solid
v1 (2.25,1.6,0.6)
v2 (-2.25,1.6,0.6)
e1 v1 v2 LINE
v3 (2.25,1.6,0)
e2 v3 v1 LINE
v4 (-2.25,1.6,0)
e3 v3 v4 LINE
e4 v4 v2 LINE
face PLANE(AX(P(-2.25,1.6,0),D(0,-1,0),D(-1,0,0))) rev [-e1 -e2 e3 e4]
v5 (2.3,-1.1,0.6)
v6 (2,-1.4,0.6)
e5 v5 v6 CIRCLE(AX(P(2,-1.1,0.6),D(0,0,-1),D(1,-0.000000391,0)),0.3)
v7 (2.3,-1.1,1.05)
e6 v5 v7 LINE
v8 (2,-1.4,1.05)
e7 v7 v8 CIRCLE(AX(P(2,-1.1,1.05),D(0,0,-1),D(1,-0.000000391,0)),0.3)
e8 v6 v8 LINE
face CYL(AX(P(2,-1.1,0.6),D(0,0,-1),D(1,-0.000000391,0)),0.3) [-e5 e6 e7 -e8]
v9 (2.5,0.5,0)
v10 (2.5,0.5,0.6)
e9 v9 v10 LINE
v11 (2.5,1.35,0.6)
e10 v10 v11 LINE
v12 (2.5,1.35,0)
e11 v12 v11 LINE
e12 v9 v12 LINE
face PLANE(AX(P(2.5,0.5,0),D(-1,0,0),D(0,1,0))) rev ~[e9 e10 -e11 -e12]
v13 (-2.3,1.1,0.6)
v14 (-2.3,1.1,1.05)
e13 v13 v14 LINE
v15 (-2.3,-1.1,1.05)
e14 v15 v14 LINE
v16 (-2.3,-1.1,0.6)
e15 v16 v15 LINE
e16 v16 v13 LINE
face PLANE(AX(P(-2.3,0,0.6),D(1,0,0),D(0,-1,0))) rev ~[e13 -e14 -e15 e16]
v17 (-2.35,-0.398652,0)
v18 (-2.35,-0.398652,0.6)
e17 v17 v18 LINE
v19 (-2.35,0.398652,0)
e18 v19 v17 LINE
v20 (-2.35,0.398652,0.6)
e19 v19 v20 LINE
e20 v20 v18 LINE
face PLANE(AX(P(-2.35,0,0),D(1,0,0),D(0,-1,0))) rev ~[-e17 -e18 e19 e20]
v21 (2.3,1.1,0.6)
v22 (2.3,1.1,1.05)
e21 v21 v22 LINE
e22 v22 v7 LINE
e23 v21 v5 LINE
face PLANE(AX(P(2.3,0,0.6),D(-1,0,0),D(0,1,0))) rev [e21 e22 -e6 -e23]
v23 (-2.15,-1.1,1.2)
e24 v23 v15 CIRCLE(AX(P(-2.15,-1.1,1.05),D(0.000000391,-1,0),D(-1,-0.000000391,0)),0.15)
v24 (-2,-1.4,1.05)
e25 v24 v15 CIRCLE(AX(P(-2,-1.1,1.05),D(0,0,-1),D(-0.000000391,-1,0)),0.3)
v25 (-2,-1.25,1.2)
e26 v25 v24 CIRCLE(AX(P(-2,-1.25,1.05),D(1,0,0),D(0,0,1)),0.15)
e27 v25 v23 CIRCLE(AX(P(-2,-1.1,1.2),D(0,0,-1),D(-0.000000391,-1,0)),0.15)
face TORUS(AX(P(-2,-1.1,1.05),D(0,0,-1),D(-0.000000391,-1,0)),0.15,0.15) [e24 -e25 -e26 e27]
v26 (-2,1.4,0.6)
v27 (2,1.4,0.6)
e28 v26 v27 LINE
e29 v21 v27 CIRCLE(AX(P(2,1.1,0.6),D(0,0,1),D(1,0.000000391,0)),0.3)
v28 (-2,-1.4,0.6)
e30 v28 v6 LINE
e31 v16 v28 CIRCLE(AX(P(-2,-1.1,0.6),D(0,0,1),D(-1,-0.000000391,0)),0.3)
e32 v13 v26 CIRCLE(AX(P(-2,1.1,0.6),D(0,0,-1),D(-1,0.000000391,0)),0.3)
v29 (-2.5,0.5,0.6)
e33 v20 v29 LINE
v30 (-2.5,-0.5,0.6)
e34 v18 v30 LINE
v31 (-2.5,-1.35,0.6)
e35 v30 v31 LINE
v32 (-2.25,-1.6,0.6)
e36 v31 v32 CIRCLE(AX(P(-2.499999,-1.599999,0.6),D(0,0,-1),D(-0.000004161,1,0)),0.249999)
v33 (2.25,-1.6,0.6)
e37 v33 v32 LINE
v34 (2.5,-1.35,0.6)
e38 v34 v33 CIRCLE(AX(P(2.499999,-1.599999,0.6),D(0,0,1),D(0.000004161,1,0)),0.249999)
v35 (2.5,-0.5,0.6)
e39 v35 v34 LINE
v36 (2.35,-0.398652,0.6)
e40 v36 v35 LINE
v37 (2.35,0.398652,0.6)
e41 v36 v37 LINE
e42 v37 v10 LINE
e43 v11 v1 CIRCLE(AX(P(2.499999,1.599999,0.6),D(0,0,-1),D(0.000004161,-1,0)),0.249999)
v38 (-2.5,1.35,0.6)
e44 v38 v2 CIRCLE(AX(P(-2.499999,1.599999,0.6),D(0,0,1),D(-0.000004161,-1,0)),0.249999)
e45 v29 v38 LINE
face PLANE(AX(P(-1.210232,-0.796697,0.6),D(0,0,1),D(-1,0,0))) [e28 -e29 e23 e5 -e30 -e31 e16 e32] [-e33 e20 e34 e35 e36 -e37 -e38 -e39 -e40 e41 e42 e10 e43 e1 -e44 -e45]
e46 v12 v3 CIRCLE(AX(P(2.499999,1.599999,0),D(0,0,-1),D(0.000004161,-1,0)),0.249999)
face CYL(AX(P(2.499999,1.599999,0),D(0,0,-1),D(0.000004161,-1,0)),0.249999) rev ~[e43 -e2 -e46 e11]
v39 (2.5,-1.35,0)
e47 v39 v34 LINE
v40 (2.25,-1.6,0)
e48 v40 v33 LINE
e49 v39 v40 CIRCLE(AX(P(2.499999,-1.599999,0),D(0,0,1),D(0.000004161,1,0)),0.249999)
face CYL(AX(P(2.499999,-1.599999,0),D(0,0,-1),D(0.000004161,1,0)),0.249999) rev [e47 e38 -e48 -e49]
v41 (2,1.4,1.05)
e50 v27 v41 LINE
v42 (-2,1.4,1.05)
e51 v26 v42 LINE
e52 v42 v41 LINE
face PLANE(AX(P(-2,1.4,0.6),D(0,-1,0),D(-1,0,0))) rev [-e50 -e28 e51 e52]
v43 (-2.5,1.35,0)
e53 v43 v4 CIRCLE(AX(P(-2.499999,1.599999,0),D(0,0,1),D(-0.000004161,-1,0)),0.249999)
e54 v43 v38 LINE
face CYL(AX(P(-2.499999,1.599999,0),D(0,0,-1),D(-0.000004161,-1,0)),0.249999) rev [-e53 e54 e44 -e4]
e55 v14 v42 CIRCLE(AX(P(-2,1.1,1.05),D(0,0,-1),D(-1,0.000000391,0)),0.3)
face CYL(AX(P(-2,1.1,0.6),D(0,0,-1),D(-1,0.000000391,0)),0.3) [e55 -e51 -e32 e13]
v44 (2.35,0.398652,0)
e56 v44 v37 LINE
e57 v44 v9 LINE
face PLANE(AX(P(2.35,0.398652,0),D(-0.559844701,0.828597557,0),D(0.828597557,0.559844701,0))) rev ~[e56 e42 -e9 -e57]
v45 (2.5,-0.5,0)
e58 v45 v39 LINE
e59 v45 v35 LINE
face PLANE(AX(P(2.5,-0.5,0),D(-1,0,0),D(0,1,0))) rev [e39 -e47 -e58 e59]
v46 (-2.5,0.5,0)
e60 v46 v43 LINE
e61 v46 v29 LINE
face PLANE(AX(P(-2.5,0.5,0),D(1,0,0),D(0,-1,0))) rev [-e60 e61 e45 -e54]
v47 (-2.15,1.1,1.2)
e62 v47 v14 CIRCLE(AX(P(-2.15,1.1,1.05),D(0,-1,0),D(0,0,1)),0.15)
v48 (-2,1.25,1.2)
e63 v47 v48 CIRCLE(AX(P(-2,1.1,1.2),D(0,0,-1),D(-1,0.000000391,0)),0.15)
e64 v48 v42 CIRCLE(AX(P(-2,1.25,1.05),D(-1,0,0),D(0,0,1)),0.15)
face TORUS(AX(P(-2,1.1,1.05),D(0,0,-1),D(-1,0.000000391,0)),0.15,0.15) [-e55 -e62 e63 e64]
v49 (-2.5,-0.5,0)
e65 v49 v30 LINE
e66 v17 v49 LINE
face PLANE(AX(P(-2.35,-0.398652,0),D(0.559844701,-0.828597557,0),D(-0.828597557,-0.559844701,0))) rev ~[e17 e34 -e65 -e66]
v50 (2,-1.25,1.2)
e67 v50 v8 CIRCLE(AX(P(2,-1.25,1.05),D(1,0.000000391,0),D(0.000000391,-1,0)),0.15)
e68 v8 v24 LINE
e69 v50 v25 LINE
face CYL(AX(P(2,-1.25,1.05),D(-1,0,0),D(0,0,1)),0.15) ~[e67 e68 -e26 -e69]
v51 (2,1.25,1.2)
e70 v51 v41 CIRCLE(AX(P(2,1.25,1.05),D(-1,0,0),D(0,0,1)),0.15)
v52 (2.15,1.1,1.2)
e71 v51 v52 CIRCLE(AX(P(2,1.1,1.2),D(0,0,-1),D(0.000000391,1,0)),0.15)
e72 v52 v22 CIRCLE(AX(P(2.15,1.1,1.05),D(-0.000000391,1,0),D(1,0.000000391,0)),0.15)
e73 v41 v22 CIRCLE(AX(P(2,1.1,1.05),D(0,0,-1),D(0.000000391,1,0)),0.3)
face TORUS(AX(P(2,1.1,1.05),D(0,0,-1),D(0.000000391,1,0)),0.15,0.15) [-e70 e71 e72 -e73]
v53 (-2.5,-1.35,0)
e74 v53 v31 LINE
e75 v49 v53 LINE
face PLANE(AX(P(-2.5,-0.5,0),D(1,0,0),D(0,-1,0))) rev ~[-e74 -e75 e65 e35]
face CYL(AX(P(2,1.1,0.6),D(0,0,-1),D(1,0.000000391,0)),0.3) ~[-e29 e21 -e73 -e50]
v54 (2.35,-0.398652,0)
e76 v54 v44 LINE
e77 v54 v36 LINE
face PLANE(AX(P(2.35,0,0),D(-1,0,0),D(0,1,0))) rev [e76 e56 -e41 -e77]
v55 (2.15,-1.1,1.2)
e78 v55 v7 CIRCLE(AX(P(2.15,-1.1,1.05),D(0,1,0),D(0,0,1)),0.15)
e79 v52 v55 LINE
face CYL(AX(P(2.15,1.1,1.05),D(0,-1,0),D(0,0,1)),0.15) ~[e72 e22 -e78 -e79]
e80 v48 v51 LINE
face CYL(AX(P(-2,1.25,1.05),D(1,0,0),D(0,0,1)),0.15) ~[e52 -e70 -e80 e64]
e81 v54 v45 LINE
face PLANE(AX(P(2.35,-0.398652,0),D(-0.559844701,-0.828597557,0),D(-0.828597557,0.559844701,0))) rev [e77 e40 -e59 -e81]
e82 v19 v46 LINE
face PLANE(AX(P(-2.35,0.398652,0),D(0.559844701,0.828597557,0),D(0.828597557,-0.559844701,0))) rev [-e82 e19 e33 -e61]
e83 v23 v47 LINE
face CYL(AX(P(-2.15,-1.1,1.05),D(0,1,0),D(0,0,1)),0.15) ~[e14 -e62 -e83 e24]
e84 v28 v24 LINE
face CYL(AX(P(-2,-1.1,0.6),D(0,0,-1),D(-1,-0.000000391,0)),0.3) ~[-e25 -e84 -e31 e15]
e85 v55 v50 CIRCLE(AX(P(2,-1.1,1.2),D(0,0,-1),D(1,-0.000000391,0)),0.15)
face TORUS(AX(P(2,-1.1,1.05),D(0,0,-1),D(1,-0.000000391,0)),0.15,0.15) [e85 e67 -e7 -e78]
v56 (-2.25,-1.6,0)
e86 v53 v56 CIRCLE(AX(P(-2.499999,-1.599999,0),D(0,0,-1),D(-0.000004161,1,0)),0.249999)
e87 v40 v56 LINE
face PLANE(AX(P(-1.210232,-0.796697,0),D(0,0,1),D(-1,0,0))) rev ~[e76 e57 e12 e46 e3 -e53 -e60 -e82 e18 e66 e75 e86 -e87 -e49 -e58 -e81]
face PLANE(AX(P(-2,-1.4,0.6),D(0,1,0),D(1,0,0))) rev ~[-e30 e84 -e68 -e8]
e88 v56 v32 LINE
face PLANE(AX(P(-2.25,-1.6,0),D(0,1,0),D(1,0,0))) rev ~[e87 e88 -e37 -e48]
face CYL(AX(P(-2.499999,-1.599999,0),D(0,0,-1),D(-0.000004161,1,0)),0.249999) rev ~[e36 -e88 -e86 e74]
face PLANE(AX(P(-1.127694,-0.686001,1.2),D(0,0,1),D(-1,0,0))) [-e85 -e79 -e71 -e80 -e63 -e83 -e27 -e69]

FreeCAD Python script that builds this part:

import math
import FreeCAD as App
import Part
import Sketcher


def edges_at(feature, points):
    """Names of the edges that pass closest to the given points."""
    edges = feature.Shape.Edges
    near = lambda p: min(range(len(edges)), key=lambda i: edges[i].distToShape(Part.Vertex(*p))[0])
    return sorted({f"Edge{near(p) + 1}" for p in points})

doc = App.newDocument("Part")
params = doc.addObject("Spreadsheet::Sheet", "Params")
for row, (alias, value) in enumerate([
    ("sketch1_radius", "0.249999 mm"),
    ("sketch1_height", "1.6 mm"),
    ("sketch1_width", "2.35 mm"),
    ("sketch1_width2", "2.25 mm"),
    ("sketch1_height2", "0.85 mm"),
    ("pad1_length", "0.6 mm"),
    ("sketch2_radius", "0.3 mm"),
    ("sketch2_width", "2 mm"),
    ("sketch2_height", "1.4 mm"),
    ("pad2_length", "0.6 mm"),
    ("fillet_radius", "0.15 mm"),
], start=1):
    params.set(f"A{row}", alias)
    params.set(f"B{row}", "=" + value)
    params.setAlias(f"B{row}", alias)

body = doc.addObject("PartDesign::Body", "Body")

# Sketch on XY plane
sketch1 = doc.addObject("Sketcher::SketchObject", "Sketch")
body.addObject(sketch1)
sketch1.AttachmentSupport = (doc.XY_Plane, [""])
sketch1.MapMode = "FlatFace"
sketch1.addGeometry([
    Part.LineSegment(App.Vector(0, 1.6, 0), App.Vector(0, 0, 0)),  # 0
    Part.LineSegment(App.Vector(0, 0, 0), App.Vector(2.35, 0, 0)),  # 1
    Part.LineSegment(App.Vector(2.35, 0, 0), App.Vector(2.35, 0.4, 0)),  # 2
    Part.LineSegment(App.Vector(2.35, 0.4, 0), App.Vector(2.5, 0.5, 0)),  # 3
    Part.LineSegment(App.Vector(2.5, 0.5, 0), App.Vector(2.5, 1.35, 0)),  # 4
    Part.ArcOfCircle(Part.Circle(App.Vector(2.5, 1.6, 0), App.Vector(0, 0, 1), 0.25), math.radians(180), math.radians(270)),  # 5
    Part.LineSegment(App.Vector(2.25, 1.6, 0), App.Vector(0, 1.6, 0)),  # 6
], False)
sketch1.addConstraint([
    Sketcher.Constraint("Coincident", 0, 2, 1, 1),
    Sketcher.Constraint("Coincident", 1, 2, 2, 1),
    Sketcher.Constraint("Coincident", 2, 2, 3, 1),
    Sketcher.Constraint("Coincident", 3, 2, 4, 1),
    Sketcher.Constraint("Coincident", 4, 2, 5, 2),
    Sketcher.Constraint("Coincident", 5, 1, 6, 1),
    Sketcher.Constraint("Coincident", 6, 2, 0, 1),
    Sketcher.Constraint("Vertical", 0),
    Sketcher.Constraint("Horizontal", 1),
    Sketcher.Constraint("Vertical", 2),
    Sketcher.Constraint("Vertical", 4),
    Sketcher.Constraint("Horizontal", 6),
    Sketcher.Constraint("Coincident", 0, 2, -1, 1),
    Sketcher.Constraint("Vertical", 5, 3, 3, 2),
    Sketcher.Constraint("Radius", 5, 0.249999),
    Sketcher.Constraint("DistanceY", 0, 2, 0, 1, 1.6),
    Sketcher.Constraint("DistanceX", 1, 1, 1, 2, 2.35),
    Sketcher.Constraint("DistanceX", 6, 2, 6, 1, 2.25),
    Sketcher.Constraint("DistanceY", 4, 1, 4, 2, 0.85),
    Sketcher.Constraint("DistanceY", -1, 1, 5, 3, 1.599999),
    Sketcher.Constraint("Distance", 3, 0.181029),
])
sketch1.setExpression("Constraints[14]", "Params.sketch1_radius")
sketch1.setExpression("Constraints[15]", "Params.sketch1_height")
sketch1.setExpression("Constraints[16]", "Params.sketch1_width")
sketch1.setExpression("Constraints[17]", "Params.sketch1_width2")
sketch1.setExpression("Constraints[18]", "Params.sketch1_height2")
pad1 = doc.addObject("PartDesign::Pad", "Pad")
body.addObject(pad1)
pad1.Profile = sketch1
pad1.setExpression("Length", "Params.pad1_length")

# Sketch on XY plane
sketch2 = doc.addObject("Sketcher::SketchObject", "Sketch001")
body.addObject(sketch2)
sketch2.AttachmentSupport = (doc.XY_Plane, [""])
sketch2.MapMode = "FlatFace"
sketch2.AttachmentOffset = App.Placement(App.Vector(0, 0, 0.6), App.Rotation())
sketch2.addGeometry([
    Part.LineSegment(App.Vector(0, 1.4, 0), App.Vector(0, 0, 0)),  # 0
    Part.LineSegment(App.Vector(0, 0, 0), App.Vector(2.3, 0, 0)),  # 1
    Part.LineSegment(App.Vector(2.3, 0, 0), App.Vector(2.3, 1.1, 0)),  # 2
    Part.ArcOfCircle(Part.Circle(App.Vector(2, 1.1, 0), App.Vector(0, 0, 1), 0.3), math.radians(0), math.radians(90)),  # 3
    Part.LineSegment(App.Vector(2, 1.4, 0), App.Vector(0, 1.4, 0)),  # 4
], False)
sketch2.addConstraint([
    Sketcher.Constraint("Coincident", 0, 2, 1, 1),
    Sketcher.Constraint("Coincident", 1, 2, 2, 1),
    Sketcher.Constraint("Tangent", 2, 2, 3, 1),
    Sketcher.Constraint("Tangent", 3, 2, 4, 1),
    Sketcher.Constraint("Coincident", 4, 2, 0, 1),
    Sketcher.Constraint("Vertical", 0),
    Sketcher.Constraint("Horizontal", 1),
    Sketcher.Constraint("Vertical", 2),
    Sketcher.Constraint("Horizontal", 4),
    Sketcher.Constraint("Coincident", 0, 2, -1, 1),
    Sketcher.Constraint("Radius", 3, 0.3),
    Sketcher.Constraint("DistanceX", 4, 2, 4, 1, 2.0),
    Sketcher.Constraint("DistanceY", 0, 2, 0, 1, 1.4),
])
sketch2.setExpression("Constraints[10]", "Params.sketch2_radius")
sketch2.setExpression("Constraints[11]", "Params.sketch2_width")
sketch2.setExpression("Constraints[12]", "Params.sketch2_height")
pad2 = doc.addObject("PartDesign::Pad", "Pad001")
body.addObject(pad2)
pad2.Profile = sketch2
pad2.setExpression("Length", "Params.pad2_length")
body2 = doc.addObject("PartDesign::Body", "Body001")
doc.recompute()

body2.BaseFeature = body
doc.recompute()

mirroring = doc.addObject("Part::Mirroring", "Mirroring")
mirroring.Source = body
mirroring.Base = App.Vector(0, 0.753333, 0.58)
mirroring.Normal = App.Vector(-1, 0, 0)
body3 = doc.addObject("PartDesign::Body", "Body002")
body3.BaseFeature = mirroring
boolean = doc.addObject("PartDesign::Boolean", "Boolean")
body2.addObject(boolean)
boolean.Type = "Fuse"
boolean.addObjects([body3])
doc.recompute()
body4 = doc.addObject("PartDesign::Body", "Body003")
doc.recompute()

body4.BaseFeature = body2
doc.recompute()

mirroring2 = doc.addObject("Part::Mirroring", "Mirroring001")
mirroring2.Source = body2
mirroring2.Base = App.Vector(0, 0, 0.596774)
mirroring2.Normal = App.Vector(0, -1, 0)
body5 = doc.addObject("PartDesign::Body", "Body004")
body5.BaseFeature = mirroring2
boolean2 = doc.addObject("PartDesign::Boolean", "Boolean001")
body4.addObject(boolean2)
boolean2.Type = "Fuse"
boolean2.addObjects([body5])
doc.recompute()

fillet = doc.addObject("PartDesign::Fillet", "Fillet")
body4.addObject(fillet)
fillet.Base = (boolean2, edges_at(boolean2, [
    (0, 1.4, 1.2),
    (-2.212, 1.312, 1.2),
    (-2.3, 0, 1.2),
    (-2.212, -1.312, 1.2),
    (0, -1.4, 1.2),
    (2.212, -1.312, 1.2),
    (2.3, 0, 1.2),
    (2.212, 1.312, 1.2),
]))
fillet.setExpression("Radius", "Params.fillet_radius")
mirroring.Visibility = False
mirroring2.Visibility = False

doc.recompute()
